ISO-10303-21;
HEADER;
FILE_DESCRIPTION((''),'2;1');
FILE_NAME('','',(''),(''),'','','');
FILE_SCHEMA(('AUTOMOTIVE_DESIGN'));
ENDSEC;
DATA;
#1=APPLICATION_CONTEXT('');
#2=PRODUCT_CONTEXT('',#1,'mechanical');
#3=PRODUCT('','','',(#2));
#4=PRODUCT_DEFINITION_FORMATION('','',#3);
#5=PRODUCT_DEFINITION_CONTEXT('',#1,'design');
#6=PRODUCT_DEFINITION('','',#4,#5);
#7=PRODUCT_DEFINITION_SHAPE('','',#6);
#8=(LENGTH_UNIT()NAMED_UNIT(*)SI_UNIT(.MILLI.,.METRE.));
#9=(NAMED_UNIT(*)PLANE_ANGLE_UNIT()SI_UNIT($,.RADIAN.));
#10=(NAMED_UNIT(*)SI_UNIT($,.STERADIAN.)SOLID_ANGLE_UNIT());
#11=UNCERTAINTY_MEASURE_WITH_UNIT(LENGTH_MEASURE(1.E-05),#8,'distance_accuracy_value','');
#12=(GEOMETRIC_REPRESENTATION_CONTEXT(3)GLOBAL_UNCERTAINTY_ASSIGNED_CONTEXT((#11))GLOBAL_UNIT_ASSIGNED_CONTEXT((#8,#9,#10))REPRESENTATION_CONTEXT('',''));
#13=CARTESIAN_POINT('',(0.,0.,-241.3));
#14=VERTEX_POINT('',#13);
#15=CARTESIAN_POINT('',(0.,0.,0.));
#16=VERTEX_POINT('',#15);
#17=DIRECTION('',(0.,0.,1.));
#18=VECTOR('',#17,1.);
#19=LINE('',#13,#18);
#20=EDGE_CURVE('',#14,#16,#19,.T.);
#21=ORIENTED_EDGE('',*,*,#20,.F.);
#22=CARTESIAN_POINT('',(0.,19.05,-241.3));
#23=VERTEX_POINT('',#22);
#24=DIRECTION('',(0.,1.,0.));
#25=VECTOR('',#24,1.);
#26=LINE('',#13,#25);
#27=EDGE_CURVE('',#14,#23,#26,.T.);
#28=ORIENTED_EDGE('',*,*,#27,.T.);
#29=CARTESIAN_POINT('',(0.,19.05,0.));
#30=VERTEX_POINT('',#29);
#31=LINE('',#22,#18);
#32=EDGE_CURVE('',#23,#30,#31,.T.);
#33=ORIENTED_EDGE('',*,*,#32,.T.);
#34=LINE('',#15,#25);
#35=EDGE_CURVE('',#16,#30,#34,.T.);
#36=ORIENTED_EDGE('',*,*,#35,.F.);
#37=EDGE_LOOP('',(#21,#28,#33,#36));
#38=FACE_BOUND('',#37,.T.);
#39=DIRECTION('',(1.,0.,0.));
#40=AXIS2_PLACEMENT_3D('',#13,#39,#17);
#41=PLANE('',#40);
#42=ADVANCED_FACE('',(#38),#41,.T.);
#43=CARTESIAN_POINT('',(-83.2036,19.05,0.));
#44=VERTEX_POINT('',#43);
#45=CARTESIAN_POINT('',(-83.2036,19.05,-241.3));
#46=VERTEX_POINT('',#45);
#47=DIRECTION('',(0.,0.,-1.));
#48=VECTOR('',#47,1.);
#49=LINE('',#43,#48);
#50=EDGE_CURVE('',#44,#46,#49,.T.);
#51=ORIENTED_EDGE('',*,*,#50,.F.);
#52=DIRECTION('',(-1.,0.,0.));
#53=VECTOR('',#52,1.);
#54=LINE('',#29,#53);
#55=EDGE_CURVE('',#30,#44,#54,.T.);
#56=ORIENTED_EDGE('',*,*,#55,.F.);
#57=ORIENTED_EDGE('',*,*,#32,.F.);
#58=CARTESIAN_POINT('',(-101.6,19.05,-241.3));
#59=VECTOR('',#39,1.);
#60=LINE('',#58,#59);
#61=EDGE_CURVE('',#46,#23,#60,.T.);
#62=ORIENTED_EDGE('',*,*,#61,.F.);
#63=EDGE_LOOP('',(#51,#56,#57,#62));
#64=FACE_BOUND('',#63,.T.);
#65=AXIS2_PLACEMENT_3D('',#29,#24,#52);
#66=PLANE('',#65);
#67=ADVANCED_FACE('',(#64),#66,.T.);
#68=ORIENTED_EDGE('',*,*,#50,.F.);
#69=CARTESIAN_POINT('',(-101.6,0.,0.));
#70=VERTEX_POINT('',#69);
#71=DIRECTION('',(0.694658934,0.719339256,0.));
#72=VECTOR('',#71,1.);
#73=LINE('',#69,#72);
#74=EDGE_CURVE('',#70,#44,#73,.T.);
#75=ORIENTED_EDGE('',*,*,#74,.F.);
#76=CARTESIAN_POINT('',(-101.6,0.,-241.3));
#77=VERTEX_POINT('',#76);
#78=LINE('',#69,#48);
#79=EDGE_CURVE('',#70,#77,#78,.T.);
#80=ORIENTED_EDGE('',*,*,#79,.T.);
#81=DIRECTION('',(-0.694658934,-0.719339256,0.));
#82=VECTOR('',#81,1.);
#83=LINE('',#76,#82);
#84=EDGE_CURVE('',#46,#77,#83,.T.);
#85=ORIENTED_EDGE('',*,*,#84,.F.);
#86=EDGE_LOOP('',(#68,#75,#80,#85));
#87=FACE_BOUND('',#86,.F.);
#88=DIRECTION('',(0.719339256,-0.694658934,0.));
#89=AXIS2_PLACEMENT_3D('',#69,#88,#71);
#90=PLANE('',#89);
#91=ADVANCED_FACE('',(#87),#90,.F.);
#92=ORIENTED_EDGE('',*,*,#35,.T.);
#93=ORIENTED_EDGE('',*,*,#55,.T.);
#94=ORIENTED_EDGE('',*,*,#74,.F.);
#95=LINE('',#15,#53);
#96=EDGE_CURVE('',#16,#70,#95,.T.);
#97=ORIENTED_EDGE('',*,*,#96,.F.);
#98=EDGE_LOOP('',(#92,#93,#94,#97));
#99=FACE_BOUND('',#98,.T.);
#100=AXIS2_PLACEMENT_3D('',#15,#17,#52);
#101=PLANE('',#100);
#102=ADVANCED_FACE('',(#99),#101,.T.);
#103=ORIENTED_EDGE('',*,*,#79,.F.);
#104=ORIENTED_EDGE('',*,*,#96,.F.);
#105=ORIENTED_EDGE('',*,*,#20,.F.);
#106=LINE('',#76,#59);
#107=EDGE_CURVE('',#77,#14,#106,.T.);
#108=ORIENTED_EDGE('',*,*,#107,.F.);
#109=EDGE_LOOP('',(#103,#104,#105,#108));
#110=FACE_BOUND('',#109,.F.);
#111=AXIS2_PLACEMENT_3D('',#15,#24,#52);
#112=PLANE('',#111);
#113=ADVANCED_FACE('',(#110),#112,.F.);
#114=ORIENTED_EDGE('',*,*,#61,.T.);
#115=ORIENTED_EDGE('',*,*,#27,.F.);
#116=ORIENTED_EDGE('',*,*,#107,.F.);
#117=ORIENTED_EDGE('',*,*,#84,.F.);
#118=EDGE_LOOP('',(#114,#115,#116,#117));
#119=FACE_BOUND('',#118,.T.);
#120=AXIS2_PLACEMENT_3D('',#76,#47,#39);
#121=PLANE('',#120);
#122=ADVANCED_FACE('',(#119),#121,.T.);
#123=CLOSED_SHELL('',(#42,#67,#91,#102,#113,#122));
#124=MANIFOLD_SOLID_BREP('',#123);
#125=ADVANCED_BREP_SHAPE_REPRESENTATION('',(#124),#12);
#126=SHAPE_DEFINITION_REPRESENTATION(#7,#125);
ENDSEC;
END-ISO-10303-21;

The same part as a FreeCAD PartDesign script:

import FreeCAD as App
import Part
import Sketcher

V = App.Vector
Q = App.Units.Quantity

doc = App.newDocument("Part")
params = doc.addObject("Spreadsheet::Sheet", "Params")
for row, (alias, value) in enumerate([
    ("sketch1_width", "4 in"),
    ("sketch1_height", "9.5 in"),
    ("pad1_length", "0.75 in"),
    ("sketch2_height", "0.75 in"),
    ("pocket1_length", "10 in"),
], start=1):
    params.set(f"A{row}", alias)
    params.set(f"B{row}", "=" + value)
    params.setAlias(f"B{row}", alias)

body = doc.addObject("PartDesign::Body", "Body")

# Sketch on XZ plane
sketch1 = body.newObject("Sketcher::SketchObject", "Sketch")
sketch1.AttachmentSupport = (doc.getObject("XZ_Plane"), [""])
sketch1.MapMode = "FlatFace"
sketch1.addGeometry([
    Part.LineSegment(V(-102, 0, 0), V(0, 0, 0)),
    Part.LineSegment(V(0, 0, 0), V(0, -241, 0)),
    Part.LineSegment(V(0, -241, 0), V(-102, -241, 0)),
    Part.LineSegment(V(-102, -241, 0), V(-102, 0, 0)),
], False)
sketch1.addConstraint([
    Sketcher.Constraint("Coincident", 0, 2, 1, 1),
    Sketcher.Constraint("Coincident", 1, 2, 2, 1),
    Sketcher.Constraint("Coincident", 2, 2, 3, 1),
    Sketcher.Constraint("Coincident", 3, 2, 0, 1),
    Sketcher.Constraint("Horizontal", 0),
    Sketcher.Constraint("Vertical", 1),
    Sketcher.Constraint("Horizontal", 2),
    Sketcher.Constraint("Vertical", 3),
    Sketcher.Constraint("Coincident", 0, 2, -1, 1),
    Sketcher.Constraint("DistanceX", 0, 1, 0, 2, Q("4 in")),
    Sketcher.Constraint("DistanceY", 1, 2, 1, 1, Q("9.5 in")),
])
sketch1.setExpression("Constraints[9]", "Params.sketch1_width")
sketch1.setExpression("Constraints[10]", "Params.sketch1_height")
pad1 = body.newObject("PartDesign::Pad", "Pad")
pad1.Profile = sketch1
pad1.setExpression("Length", "Params.pad1_length")
pad1.Reversed = True

# Sketch on XY plane
sketch2 = body.newObject("Sketcher::SketchObject", "Sketch001")
sketch2.AttachmentSupport = (doc.getObject("XY_Plane"), [""])
sketch2.MapMode = "FlatFace"
sketch2.addGeometry([
    Part.LineSegment(V(-102, 19, 0), V(-102, 0, 0)),
    Part.LineSegment(V(-102, 0, 0), V(-83, 19, 0)),
    Part.LineSegment(V(-83, 19, 0), V(-102, 19, 0)),
], False)
sketch2.addConstraint([
    Sketcher.Constraint("Coincident", 0, 2, 1, 1),
    Sketcher.Constraint("Coincident", 1, 2, 2, 1),
    Sketcher.Constraint("Coincident", 2, 2, 0, 1),
    Sketcher.Constraint("Vertical", 0),
    Sketcher.Constraint("Horizontal", 2),
    Sketcher.Constraint("PointOnObject", 0, 2, -1),
    Sketcher.Constraint("DistanceX", 0, 2, -1, 1, Q("4 in")),
    Sketcher.Constraint("Angle", 1, Q("46 deg")),
    Sketcher.Constraint("DistanceY", 0, 2, 0, 1, Q("0.75 in")),
])
sketch2.setExpression("Constraints[8]", "Params.sketch2_height")
pocket1 = body.newObject("PartDesign::Pocket", "Pocket")
pocket1.Profile = sketch2
pocket1.setExpression("Length", "Params.pocket1_length")

doc.recompute()
